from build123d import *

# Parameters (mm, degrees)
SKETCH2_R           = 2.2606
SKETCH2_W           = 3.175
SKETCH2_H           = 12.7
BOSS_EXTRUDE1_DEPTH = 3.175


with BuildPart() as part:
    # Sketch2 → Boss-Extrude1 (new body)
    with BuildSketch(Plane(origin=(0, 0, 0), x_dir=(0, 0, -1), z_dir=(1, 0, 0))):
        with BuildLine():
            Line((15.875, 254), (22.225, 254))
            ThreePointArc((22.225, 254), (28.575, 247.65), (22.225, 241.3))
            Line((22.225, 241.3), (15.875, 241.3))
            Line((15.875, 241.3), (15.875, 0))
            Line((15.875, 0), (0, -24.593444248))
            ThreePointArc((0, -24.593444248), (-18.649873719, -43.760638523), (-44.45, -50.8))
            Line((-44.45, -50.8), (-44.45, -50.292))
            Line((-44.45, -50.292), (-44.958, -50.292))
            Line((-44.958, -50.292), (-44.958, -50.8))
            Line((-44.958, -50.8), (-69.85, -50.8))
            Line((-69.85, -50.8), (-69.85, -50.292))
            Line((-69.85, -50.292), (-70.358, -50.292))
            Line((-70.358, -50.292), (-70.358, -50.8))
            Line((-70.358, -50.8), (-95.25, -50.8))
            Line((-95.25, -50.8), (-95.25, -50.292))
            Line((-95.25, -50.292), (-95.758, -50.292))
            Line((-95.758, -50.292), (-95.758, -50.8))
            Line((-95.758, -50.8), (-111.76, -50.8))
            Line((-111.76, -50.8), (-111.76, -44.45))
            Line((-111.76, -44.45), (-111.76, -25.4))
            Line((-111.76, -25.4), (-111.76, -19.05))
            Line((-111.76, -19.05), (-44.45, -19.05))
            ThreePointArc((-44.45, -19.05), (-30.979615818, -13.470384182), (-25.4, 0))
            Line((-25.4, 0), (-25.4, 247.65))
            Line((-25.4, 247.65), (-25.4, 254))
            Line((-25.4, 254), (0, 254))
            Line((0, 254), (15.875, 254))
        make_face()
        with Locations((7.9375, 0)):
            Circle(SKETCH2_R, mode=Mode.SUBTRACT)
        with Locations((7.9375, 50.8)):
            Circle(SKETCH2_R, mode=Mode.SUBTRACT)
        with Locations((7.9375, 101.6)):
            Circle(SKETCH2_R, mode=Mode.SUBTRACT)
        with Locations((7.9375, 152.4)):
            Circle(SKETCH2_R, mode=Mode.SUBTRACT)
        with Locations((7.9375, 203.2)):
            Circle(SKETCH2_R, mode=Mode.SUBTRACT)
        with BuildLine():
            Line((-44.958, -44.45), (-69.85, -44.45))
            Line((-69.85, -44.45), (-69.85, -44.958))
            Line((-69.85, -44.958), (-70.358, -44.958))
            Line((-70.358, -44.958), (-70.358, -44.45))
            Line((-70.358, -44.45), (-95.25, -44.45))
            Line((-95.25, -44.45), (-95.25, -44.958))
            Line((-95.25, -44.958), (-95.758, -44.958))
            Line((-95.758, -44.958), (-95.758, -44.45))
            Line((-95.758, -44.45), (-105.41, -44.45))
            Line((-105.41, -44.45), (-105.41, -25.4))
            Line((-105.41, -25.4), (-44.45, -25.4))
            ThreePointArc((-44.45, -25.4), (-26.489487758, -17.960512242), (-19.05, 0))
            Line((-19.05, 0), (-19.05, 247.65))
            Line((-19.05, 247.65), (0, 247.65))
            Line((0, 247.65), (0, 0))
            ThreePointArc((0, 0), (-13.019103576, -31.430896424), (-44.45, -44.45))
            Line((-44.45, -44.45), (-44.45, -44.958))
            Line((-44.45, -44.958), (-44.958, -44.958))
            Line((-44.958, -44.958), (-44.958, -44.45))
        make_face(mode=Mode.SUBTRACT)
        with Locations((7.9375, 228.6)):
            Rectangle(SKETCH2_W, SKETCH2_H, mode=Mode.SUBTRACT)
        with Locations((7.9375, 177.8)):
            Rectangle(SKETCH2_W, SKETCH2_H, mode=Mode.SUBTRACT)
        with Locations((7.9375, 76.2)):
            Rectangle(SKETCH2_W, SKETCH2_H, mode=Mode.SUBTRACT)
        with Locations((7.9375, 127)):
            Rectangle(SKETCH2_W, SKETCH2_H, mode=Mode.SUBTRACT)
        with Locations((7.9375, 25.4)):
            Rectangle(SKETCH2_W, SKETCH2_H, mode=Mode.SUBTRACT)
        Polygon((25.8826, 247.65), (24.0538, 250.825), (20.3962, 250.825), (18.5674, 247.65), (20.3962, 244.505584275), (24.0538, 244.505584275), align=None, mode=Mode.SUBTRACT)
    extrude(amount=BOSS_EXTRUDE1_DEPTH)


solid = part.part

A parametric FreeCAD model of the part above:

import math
import FreeCAD as App
import Part
import Sketcher
Q = App.Units.Quantity


def add_polygon(sketch, points):
    """Adds a closed chain of lines whose ends are joined by coincident constraints."""
    first, n = sketch.GeometryCount, len(points)
    for a, b in zip(points, points[1:] + points[:1]):
        sketch.addGeometry(Part.LineSegment(App.Vector(*a, 0), App.Vector(*b, 0)), False)
    for i in range(n):
        sketch.addConstraint(Sketcher.Constraint("Coincident", first + i, 2, first + (i + 1) % n, 1))

doc = App.newDocument("Part")
params = doc.addObject("Spreadsheet::Sheet", "Params")
for row, (alias, value) in enumerate([
    ("sketch1_radius", "2 in"),
    ("sketch1_radius2", "1 in"),
    ("sketch1_width", "10 in"),
    ("sketch1_radius3", "0.25 in"),
    ("sketch1_radius4", "0.75 in"),
    ("pad1_length", "0.125 in"),
], start=1):
    params.set(f"A{row}", alias)
    params.set(f"B{row}", "=" + value)
    params.setAlias(f"B{row}", alias)

body = doc.addObject("PartDesign::Body", "Body")

sketch1 = body.newObject("Sketcher::SketchObject", "Sketch")
sketch1.AttachmentSupport = (doc.getObject("YZ_Plane"), [""])
sketch1.MapMode = "FlatFace"
sketch1.addGeometry(Part.ArcOfCircle(Part.Circle(App.Vector(247.7, -22.2, 0), App.Vector(0, 0, 1), 6.3), math.radians(180), math.radians(360)), False)
sketch1.addGeometry(Part.LineSegment(App.Vector(254, -22.2, 0), App.Vector(254, 25.4, 0)), False)
sketch1.addGeometry(Part.LineSegment(App.Vector(254, 25.4, 0), App.Vector(0, 25.4, 0)), False)
sketch1.addGeometry(Part.ArcOfCircle(Part.Circle(App.Vector(0, 44.4, 0), App.Vector(0, 0, 1), 19), math.radians(180), math.radians(270)), False)
sketch1.addGeometry(Part.LineSegment(App.Vector(-19.1, 44.5, 0), App.Vector(-19.1, 111.8, 0)), False)
sketch1.addGeometry(Part.LineSegment(App.Vector(-19.1, 111.8, 0), App.Vector(-50.8, 111.8, 0)), False)
sketch1.addGeometry(Part.LineSegment(App.Vector(-50.8, 111.8, 0), App.Vector(-50.8, 95.8, 0)), False)
sketch1.addGeometry(Part.LineSegment(App.Vector(-50.8, 95.8, 0), App.Vector(-50.3, 95.8, 0)), False)
sketch1.addGeometry(Part.LineSegment(App.Vector(-50.3, 95.8, 0), App.Vector(-50.3, 95.2, 0)), False)
sketch1.addGeometry(Part.LineSegment(App.Vector(-50.3, 95.2, 0), App.Vector(-50.8, 95.2, 0)), False)
sketch1.addGeometry(Part.LineSegment(App.Vector(-50.8, 95.2, 0), App.Vector(-50.8, 70.4, 0)), False)
sketch1.addGeometry(Part.LineSegment(App.Vector(-50.8, 70.4, 0), App.Vector(-50.3, 70.4, 0)), False)
sketch1.addGeometry(Part.LineSegment(App.Vector(-50.3, 70.4, 0), App.Vector(-50.3, 69.8, 0)), False)
sketch1.addGeometry(Part.LineSegment(App.Vector(-50.3, 69.8, 0), App.Vector(-50.8, 69.8, 0)), False)
sketch1.addGeometry(Part.LineSegment(App.Vector(-50.8, 69.8, 0), App.Vector(-50.8, 45, 0)), False)
sketch1.addGeometry(Part.LineSegment(App.Vector(-50.8, 45, 0), App.Vector(-50.3, 45, 0)), False)
sketch1.addGeometry(Part.LineSegment(App.Vector(-50.3, 45, 0), App.Vector(-50.3, 44.5, 0)), False)
sketch1.addGeometry(Part.LineSegment(App.Vector(-50.3, 44.5, 0), App.Vector(-50.8, 44.5, 0)), False)
sketch1.addGeometry(Part.ArcOfCircle(Part.Circle(App.Vector(0, 44.4, 0), App.Vector(0, 0, 1), 50.8), math.radians(180), math.radians(241)), False)
sketch1.addGeometry(Part.LineSegment(App.Vector(-24.6, 0, 0), App.Vector(0, -15.9, 0)), False)
sketch1.addGeometry(Part.LineSegment(App.Vector(0, -15.9, 0), App.Vector(241.3, -15.9, 0)), False)
sketch1.addGeometry(Part.LineSegment(App.Vector(241.3, -15.9, 0), App.Vector(241.3, -22.2, 0)), False)
sketch1.addGeometry(Part.Circle(App.Vector(0, -7.9, 0), App.Vector(0, 0, 1), 2.3), False)
add_polygon(sketch1, [(19.1, -6.3), (31.8, -6.3), (31.8, -9.5), (19.1, -9.5)])
sketch1.addGeometry(Part.Circle(App.Vector(50.8, -7.9, 0), App.Vector(0, 0, 1), 2.3), False)
add_polygon(sketch1, [(69.8, -6.3), (82.5, -6.3), (82.5, -9.5), (69.8, -9.5)])
sketch1.addGeometry(Part.Circle(App.Vector(101.6, -7.9, 0), App.Vector(0, 0, 1), 2.3), False)
sketch1.addGeometry(Part.LineSegment(App.Vector(-44.5, 45, 0), App.Vector(-44.5, 69.8, 0)), False)
sketch1.addGeometry(Part.LineSegment(App.Vector(-44.5, 69.8, 0), App.Vector(-45, 69.8, 0)), False)
sketch1.addGeometry(Part.LineSegment(App.Vector(-45, 69.8, 0), App.Vector(-45, 70.4, 0)), False)
sketch1.addGeometry(Part.LineSegment(App.Vector(-45, 70.4, 0), App.Vector(-44.5, 70.4, 0)), False)
sketch1.addGeometry(Part.LineSegment(App.Vector(-44.5, 70.4, 0), App.Vector(-44.5, 95.2, 0)), False)
sketch1.addGeometry(Part.LineSegment(App.Vector(-44.5, 95.2, 0), App.Vector(-45, 95.2, 0)), False)
sketch1.addGeometry(Part.LineSegment(App.Vector(-45, 95.2, 0), App.Vector(-45, 95.8, 0)), False)
sketch1.addGeometry(Part.LineSegment(App.Vector(-45, 95.8, 0), App.Vector(-44.5, 95.8, 0)), False)
sketch1.addGeometry(Part.LineSegment(App.Vector(-44.5, 95.8, 0), App.Vector(-44.5, 105.4, 0)), False)
sketch1.addGeometry(Part.LineSegment(App.Vector(-44.5, 105.4, 0), App.Vector(-25.4, 105.4, 0)), False)
sketch1.addGeometry(Part.LineSegment(App.Vector(-25.4, 105.4, 0), App.Vector(-25.4, 44.5, 0)), False)
sketch1.addGeometry(Part.ArcOfCircle(Part.Circle(App.Vector(0, 44.5, 0), App.Vector(0, 0, 1), 25.4), math.radians(180), math.radians(270)), False)
sketch1.addGeometry(Part.LineSegment(App.Vector(0, 19.1, 0), App.Vector(247.7, 19.1, 0)), False)
sketch1.addGeometry(Part.LineSegment(App.Vector(247.7, 19.1, 0), App.Vector(247.7, 0, 0)), False)
sketch1.addGeometry(Part.LineSegment(App.Vector(247.7, 0, 0), App.Vector(0, 0, 0)), False)
sketch1.addGeometry(Part.ArcOfCircle(Part.Circle(App.Vector(0, 44.4, 0), App.Vector(0, 0, 1), 44.4), math.radians(180), math.radians(270)), False)
sketch1.addGeometry(Part.LineSegment(App.Vector(-44.5, 44.5, 0), App.Vector(-45, 44.5, 0)), False)
sketch1.addGeometry(Part.LineSegment(App.Vector(-45, 44.5, 0), App.Vector(-45, 45, 0)), False)
sketch1.addGeometry(Part.LineSegment(App.Vector(-45, 45, 0), App.Vector(-44.5, 45, 0)), False)
add_polygon(sketch1, [(120.7, -6.3), (133.3, -6.3), (133.3, -9.5), (120.7, -9.5)])
sketch1.addGeometry(Part.Circle(App.Vector(152.4, -7.9, 0), App.Vector(0, 0, 1), 2.3), False)
add_polygon(sketch1, [(171.4, -6.3), (184.2, -6.3), (184.2, -9.5), (171.4, -9.5)])
sketch1.addGeometry(Part.Circle(App.Vector(203.2, -7.9, 0), App.Vector(0, 0, 1), 2.3), False)
add_polygon(sketch1, [(247.7, -25.9), (244.5, -24.1), (244.5, -20.4), (247.7, -18.6), (250.8, -20.4), (250.8, -24.1)])
add_polygon(sketch1, [(222.2, -6.3), (234.9, -6.3), (234.9, -9.5), (222.2, -9.5)])
sketch1.addConstraint(Sketcher.Constraint("Tangent", 0, 2, 1, 1))
sketch1.addConstraint(Sketcher.Constraint("Coincident", 1, 2, 2, 1))
sketch1.addConstraint(Sketcher.Constraint("Tangent", 2, 2, 3, 2))
sketch1.addConstraint(Sketcher.Constraint("Tangent", 3, 1, 4, 1))
sketch1.addConstraint(Sketcher.Constraint("Coincident", 4, 2, 5, 1))
sketch1.addConstraint(Sketcher.Constraint("Coincident", 5, 2, 6, 1))
sketch1.addConstraint(Sketcher.Constraint("Coincident", 6, 2, 7, 1))
sketch1.addConstraint(Sketcher.Constraint("Coincident", 7, 2, 8, 1))
sketch1.addConstraint(Sketcher.Constraint("Coincident", 8, 2, 9, 1))
sketch1.addConstraint(Sketcher.Constraint("Coincident", 9, 2, 10, 1))
sketch1.addConstraint(Sketcher.Constraint("Coincident", 10, 2, 11, 1))
sketch1.addConstraint(Sketcher.Constraint("Coincident", 11, 2, 12, 1))
sketch1.addConstraint(Sketcher.Constraint("Coincident", 12, 2, 13, 1))
sketch1.addConstraint(Sketcher.Constraint("Coincident", 13, 2, 14, 1))
sketch1.addConstraint(Sketcher.Constraint("Coincident", 14, 2, 15, 1))
sketch1.addConstraint(Sketcher.Constraint("Coincident", 15, 2, 16, 1))
sketch1.addConstraint(Sketcher.Constraint("Coincident", 16, 2, 17, 1))
sketch1.addConstraint(Sketcher.Constraint("Coincident", 17, 2, 18, 1))
sketch1.addConstraint(Sketcher.Constraint("Coincident", 18, 2, 19, 1))
sketch1.addConstraint(Sketcher.Constraint("Coincident", 19, 2, 20, 1))
sketch1.addConstraint(Sketcher.Constraint("Coincident", 20, 2, 21, 1))
sketch1.addConstraint(Sketcher.Constraint("Tangent", 21, 2, 0, 1))
sketch1.addConstraint(Sketcher.Constraint("Coincident", 33, 2, 34, 1))
sketch1.addConstraint(Sketcher.Constraint("Coincident", 34, 2, 35, 1))
sketch1.addConstraint(Sketcher.Constraint("Coincident", 35, 2, 36, 1))
sketch1.addConstraint(Sketcher.Constraint("Coincident", 36, 2, 37, 1))
sketch1.addConstraint(Sketcher.Constraint("Coincident", 37, 2, 38, 1))
sketch1.addConstraint(Sketcher.Constraint("Coincident", 38, 2, 39, 1))
sketch1.addConstraint(Sketcher.Constraint("Coincident", 39, 2, 40, 1))
sketch1.addConstraint(Sketcher.Constraint("Coincident", 40, 2, 41, 1))
sketch1.addConstraint(Sketcher.Constraint("Coincident", 41, 2, 42, 1))
sketch1.addConstraint(Sketcher.Constraint("Coincident", 42, 2, 43, 1))
sketch1.addConstraint(Sketcher.Constraint("Tangent", 43, 2, 44, 1))
sketch1.addConstraint(Sketcher.Constraint("Tangent", 44, 2, 45, 1))
sketch1.addConstraint(Sketcher.Constraint("Coincident", 45, 2, 46, 1))
sketch1.addConstraint(Sketcher.Constraint("Coincident", 46, 2, 47, 1))
sketch1.addConstraint(Sketcher.Constraint("Tangent", 47, 2, 48, 2))
sketch1.addConstraint(Sketcher.Constraint("Coincident", 48, 1, 49, 1))
sketch1.addConstraint(Sketcher.Constraint("Coincident", 49, 2, 50, 1))
sketch1.addConstraint(Sketcher.Constraint("Coincident", 50, 2, 51, 1))
sketch1.addConstraint(Sketcher.Constraint("Coincident", 51, 2, 33, 1))
sketch1.addConstraint(Sketcher.Constraint("Vertical", 1))
sketch1.addConstraint(Sketcher.Constraint("Horizontal", 2))
sketch1.addConstraint(Sketcher.Constraint("Vertical", 4))
sketch1.addConstraint(Sketcher.Constraint("Horizontal", 5))
sketch1.addConstraint(Sketcher.Constraint("Vertical", 6))
sketch1.addConstraint(Sketcher.Constraint("Horizontal", 7))
sketch1.addConstraint(Sketcher.Constraint("Vertical", 8))
sketch1.addConstraint(Sketcher.Constraint("Horizontal", 9))
sketch1.addConstraint(Sketcher.Constraint("Vertical", 10))
sketch1.addConstraint(Sketcher.Constraint("Horizontal", 11))
sketch1.addConstraint(Sketcher.Constraint("Vertical", 12))
sketch1.addConstraint(Sketcher.Constraint("Horizontal", 13))
sketch1.addConstraint(Sketcher.Constraint("Vertical", 14))
sketch1.addConstraint(Sketcher.Constraint("Horizontal", 15))
sketch1.addConstraint(Sketcher.Constraint("Vertical", 16))
sketch1.addConstraint(Sketcher.Constraint("Horizontal", 17))
sketch1.addConstraint(Sketcher.Constraint("Horizontal", 20))
sketch1.addConstraint(Sketcher.Constraint("Vertical", 21))
sketch1.addConstraint(Sketcher.Constraint("Horizontal", 23))
sketch1.addConstraint(Sketcher.Constraint("Vertical", 24))
sketch1.addConstraint(Sketcher.Constraint("Horizontal", 25))
sketch1.addConstraint(Sketcher.Constraint("Vertical", 26))
sketch1.addConstraint(Sketcher.Constraint("Horizontal", 28))
sketch1.addConstraint(Sketcher.Constraint("Vertical", 29))
sketch1.addConstraint(Sketcher.Constraint("Horizontal", 30))
sketch1.addConstraint(Sketcher.Constraint("Vertical", 31))
sketch1.addConstraint(Sketcher.Constraint("Vertical", 33))
sketch1.addConstraint(Sketcher.Constraint("Horizontal", 34))
sketch1.addConstraint(Sketcher.Constraint("Vertical", 35))
sketch1.addConstraint(Sketcher.Constraint("Horizontal", 36))
sketch1.addConstraint(Sketcher.Constraint("Vertical", 37))
sketch1.addConstraint(Sketcher.Constraint("Horizontal", 38))
sketch1.addConstraint(Sketcher.Constraint("Vertical", 39))
sketch1.addConstraint(Sketcher.Constraint("Horizontal", 40))
sketch1.addConstraint(Sketcher.Constraint("Vertical", 41))
sketch1.addConstraint(Sketcher.Constraint("Horizontal", 42))
sketch1.addConstraint(Sketcher.Constraint("Vertical", 43))
sketch1.addConstraint(Sketcher.Constraint("Horizontal", 45))
sketch1.addConstraint(Sketcher.Constraint("Vertical", 46))
sketch1.addConstraint(Sketcher.Constraint("Horizontal", 47))
sketch1.addConstraint(Sketcher.Constraint("Horizontal", 49))
sketch1.addConstraint(Sketcher.Constraint("Vertical", 50))
sketch1.addConstraint(Sketcher.Constraint("Horizontal", 51))
sketch1.addConstraint(Sketcher.Constraint("Horizontal", 52))
sketch1.addConstraint(Sketcher.Constraint("Vertical", 53))
sketch1.addConstraint(Sketcher.Constraint("Horizontal", 54))
sketch1.addConstraint(Sketcher.Constraint("Vertical", 55))
sketch1.addConstraint(Sketcher.Constraint("Horizontal", 57))
sketch1.addConstraint(Sketcher.Constraint("Vertical", 58))
sketch1.addConstraint(Sketcher.Constraint("Horizontal", 59))
sketch1.addConstraint(Sketcher.Constraint("Vertical", 60))
sketch1.addConstraint(Sketcher.Constraint("Vertical", 63))
sketch1.addConstraint(Sketcher.Constraint("Vertical", 66))
sketch1.addConstraint(Sketcher.Constraint("Horizontal", 68))
sketch1.addConstraint(Sketcher.Constraint("Vertical", 69))
sketch1.addConstraint(Sketcher.Constraint("Horizontal", 70))
sketch1.addConstraint(Sketcher.Constraint("Vertical", 71))
sketch1.addConstraint(Sketcher.Constraint("Coincident", 47, 2, -1, 1))
sketch1.addConstraint(Sketcher.Constraint("Coincident", 18, 3, 3, 3))
sketch1.addConstraint(Sketcher.Constraint("Coincident", 44, 3, 3, 3))
sketch1.addConstraint(Sketcher.Constraint("Coincident", 48, 3, 3, 3))
sketch1.addConstraint(Sketcher.Constraint("Equal", 22, 27))
sketch1.addConstraint(Sketcher.Constraint("Equal", 27, 32))
sketch1.addConstraint(Sketcher.Constraint("Equal", 32, 56))
sketch1.addConstraint(Sketcher.Constraint("Equal", 56, 61))
sketch1.addConstraint(Sketcher.Constraint("PointOnObject", 22, 3, -2))
sketch1.addConstraint(Sketcher.Constraint("PointOnObject", 18, 2, -1))
sketch1.addConstraint(Sketcher.Constraint("PointOnObject", 19, 2, -2))
sketch1.addConstraint(Sketcher.Constraint("Horizontal", 22, 3, 27, 3))
sketch1.addConstraint(Sketcher.Constraint("Horizontal", 27, 3, 32, 3))
sketch1.addConstraint(Sketcher.Constraint("Horizontal", 32, 3, 56, 3))
sketch1.addConstraint(Sketcher.Constraint("Horizontal", 56, 3, 61, 3))
sketch1.addConstraint(Sketcher.Constraint("Horizontal", 3, 1, 16, 2))
sketch1.addConstraint(Sketcher.Constraint("Horizontal", 26, 2, 28, 2))
sketch1.addConstraint(Sketcher.Constraint("Horizontal", 25, 2, 29, 2))
sketch1.addConstraint(Sketcher.Constraint("Horizontal", 13, 2, 33, 2))
sketch1.addConstraint(Sketcher.Constraint("Horizontal", 11, 2, 35, 2))
sketch1.addConstraint(Sketcher.Constraint("Horizontal", 9, 2, 37, 2))
sketch1.addConstraint(Sketcher.Constraint("Horizontal", 7, 2, 39, 2))
sketch1.addConstraint(Sketcher.Constraint("Horizontal", 43, 2, 48, 1))
sketch1.addConstraint(Sketcher.Constraint("Horizontal", 15, 2, 50, 2))
sketch1.addConstraint(Sketcher.Constraint("Horizontal", 31, 2, 52, 2))
sketch1.addConstraint(Sketcher.Constraint("Horizontal", 30, 2, 53, 2))
sketch1.addConstraint(Sketcher.Constraint("Horizontal", 55, 2, 57, 2))
sketch1.addConstraint(Sketcher.Constraint("Horizontal", 54, 2, 58, 2))
sketch1.addConstraint(Sketcher.Constraint("Horizontal", 63, 2, 65, 2))
sketch1.addConstraint(Sketcher.Constraint("Horizontal", 62, 2, 66, 2))
sketch1.addConstraint(Sketcher.Constraint("Horizontal", 60, 2, 68, 2))
sketch1.addConstraint(Sketcher.Constraint("Horizontal", 59, 2, 69, 2))
sketch1.addConstraint(Sketcher.Constraint("Vertical", 6, 2, 9, 2))
sketch1.addConstraint(Sketcher.Constraint("Vertical", 8, 2, 11, 2))
sketch1.addConstraint(Sketcher.Constraint("Vertical", 10, 2, 13, 2))
sketch1.addConstraint(Sketcher.Constraint("Vertical", 12, 2, 15, 2))
sketch1.addConstraint(Sketcher.Constraint("Vertical", 14, 2, 17, 2))
sketch1.addConstraint(Sketcher.Constraint("Vertical", 33, 2, 36, 2))
sketch1.addConstraint(Sketcher.Constraint("Vertical", 35, 2, 38, 2))
sketch1.addConstraint(Sketcher.Constraint("Vertical", 37, 2, 40, 2))
sketch1.addConstraint(Sketcher.Constraint("Vertical", 0, 3, 45, 2))
sketch1.addConstraint(Sketcher.Constraint("Vertical", 41, 2, 48, 1))
sketch1.addConstraint(Sketcher.Constraint("Vertical", 39, 2, 49, 2))
sketch1.addConstraint(Sketcher.Constraint("Vertical", 46, 2, 64, 2))
sketch1.addConstraint(Sketcher.Constraint("Vertical", 64, 2, 67, 2))
sketch1.addConstraint(Sketcher.Constraint("Equal", 25, 28))
sketch1.addConstraint(Sketcher.Constraint("Equal", 17, 34))
sketch1.addConstraint(Sketcher.Constraint("Equal", 30, 52))
sketch1.addConstraint(Sketcher.Constraint("Equal", 54, 57))
sketch1.addConstraint(Sketcher.Constraint("Equal", 59, 68))
sketch1.addConstraint(Sketcher.Constraint("Equal", 51, 8))
sketch1.addConstraint(Sketcher.Constraint("Equal", 8, 12))
sketch1.addConstraint(Sketcher.Constraint("Equal", 10, 14))
sketch1.addConstraint(Sketcher.Constraint("Equal", 12, 16))
sketch1.addConstraint(Sketcher.Constraint("Equal", 62, 64))
sketch1.addConstraint(Sketcher.Constraint("Radius", 18, Q("2 in")))
sketch1.addConstraint(Sketcher.Constraint("Radius", 44, Q("1 in")))
sketch1.addConstraint(Sketcher.Constraint("DistanceX", 2, 2, 2, 1, Q("10 in")))
sketch1.addConstraint(Sketcher.Constraint("Radius", 0, Q("0.25 in")))
sketch1.addConstraint(Sketcher.Constraint("Radius", 3, Q("0.75 in")))
sketch1.addConstraint(Sketcher.Constraint("Radius", 48, Q("1.75 in")))
sketch1.addConstraint(Sketcher.Constraint("Diameter", 22, Q("0.178 in")))
sketch1.addConstraint(Sketcher.Constraint("DistanceX", 23, 1, 23, 2, Q("0.5 in")))
sketch1.addConstraint(Sketcher.Constraint("DistanceY", 43, 2, 43, 1, Q("2.4 in")))
sketch1.addConstraint(Sketcher.Constraint("DistanceX", -1, 1, 27, 3, Q("2 in")))
sketch1.addConstraint(Sketcher.Constraint("DistanceX", -1, 1, 32, 3, Q("4 in")))
sketch1.addConstraint(Sketcher.Constraint("DistanceX", -1, 1, 56, 3, Q("6 in")))
sketch1.addConstraint(Sketcher.Constraint("DistanceX", -1, 1, 61, 3, Q("8 in")))
sketch1.addConstraint(Sketcher.Constraint("DistanceX", 7, 1, 7, 2, Q("0.02 in")))
sketch1.addConstraint(Sketcher.Constraint("DistanceY", 4, 1, 4, 2, Q("2.65 in")))
sketch1.addConstraint(Sketcher.Constraint("DistanceY", 6, 2, 6, 1, Q("0.63 in")))
sketch1.addConstraint(Sketcher.Constraint("DistanceY", 21, 2, 21, 1, Q("0.25 in")))
sketch1.addConstraint(Sketcher.Constraint("DistanceY", 1, 1, 1, 2, Q("1.875 in")))
sketch1.addConstraint(Sketcher.Constraint("DistanceY", 24, 2, 24, 1, Q("0.125 in")))
sketch1.addConstraint(Sketcher.Constraint("DistanceY", 63, 1, 63, 2, Q("0.144 in")))
sketch1.addConstraint(Sketcher.Constraint("DistanceX", -1, 1, 23, 2, Q("1.25 in")))
sketch1.addConstraint(Sketcher.Constraint("DistanceY", 23, 2, -1, 1, Q("0.25 in")))
sketch1.addConstraint(Sketcher.Constraint("DistanceX", -1, 1, 28, 2, Q("3.25 in")))
sketch1.addConstraint(Sketcher.Constraint("DistanceX", -1, 1, 52, 2, Q("5.25 in")))
sketch1.addConstraint(Sketcher.Constraint("DistanceX", -1, 1, 57, 2, Q("7.25 in")))
sketch1.addConstraint(Sketcher.Constraint("DistanceX", -1, 1, 68, 2, Q("9.25 in")))
sketch1.addConstraint(Sketcher.Constraint("DistanceY", 22, 3, -1, 1, Q("0.3125 in")))
sketch1.addConstraint(Sketcher.Constraint("DistanceY", 62, 2, -1, 1, Q("0.947 in")))
sketch1.addConstraint(Sketcher.Constraint("DistanceY", 64, 2, -1, 1, Q("0.731 in")))
sketch1.addConstraint(Sketcher.Constraint("DistanceX", -1, 1, 65, 2, Q("9.875 in")))
sketch1.addConstraint(Sketcher.Constraint("Distance", 62, Q("3.637562 mm")))
sketch1.setExpression("Constraints[179]", "Params.sketch1_radius")
sketch1.setExpression("Constraints[180]", "Params.sketch1_radius2")
sketch1.setExpression("Constraints[181]", "Params.sketch1_width")
sketch1.setExpression("Constraints[182]", "Params.sketch1_radius3")
sketch1.setExpression("Constraints[183]", "Params.sketch1_radius4")
pad1 = body.newObject("PartDesign::Pad", "Pad")
pad1.Profile = sketch1
pad1.setExpression("Length", "Params.pad1_length")

doc.recompute()
